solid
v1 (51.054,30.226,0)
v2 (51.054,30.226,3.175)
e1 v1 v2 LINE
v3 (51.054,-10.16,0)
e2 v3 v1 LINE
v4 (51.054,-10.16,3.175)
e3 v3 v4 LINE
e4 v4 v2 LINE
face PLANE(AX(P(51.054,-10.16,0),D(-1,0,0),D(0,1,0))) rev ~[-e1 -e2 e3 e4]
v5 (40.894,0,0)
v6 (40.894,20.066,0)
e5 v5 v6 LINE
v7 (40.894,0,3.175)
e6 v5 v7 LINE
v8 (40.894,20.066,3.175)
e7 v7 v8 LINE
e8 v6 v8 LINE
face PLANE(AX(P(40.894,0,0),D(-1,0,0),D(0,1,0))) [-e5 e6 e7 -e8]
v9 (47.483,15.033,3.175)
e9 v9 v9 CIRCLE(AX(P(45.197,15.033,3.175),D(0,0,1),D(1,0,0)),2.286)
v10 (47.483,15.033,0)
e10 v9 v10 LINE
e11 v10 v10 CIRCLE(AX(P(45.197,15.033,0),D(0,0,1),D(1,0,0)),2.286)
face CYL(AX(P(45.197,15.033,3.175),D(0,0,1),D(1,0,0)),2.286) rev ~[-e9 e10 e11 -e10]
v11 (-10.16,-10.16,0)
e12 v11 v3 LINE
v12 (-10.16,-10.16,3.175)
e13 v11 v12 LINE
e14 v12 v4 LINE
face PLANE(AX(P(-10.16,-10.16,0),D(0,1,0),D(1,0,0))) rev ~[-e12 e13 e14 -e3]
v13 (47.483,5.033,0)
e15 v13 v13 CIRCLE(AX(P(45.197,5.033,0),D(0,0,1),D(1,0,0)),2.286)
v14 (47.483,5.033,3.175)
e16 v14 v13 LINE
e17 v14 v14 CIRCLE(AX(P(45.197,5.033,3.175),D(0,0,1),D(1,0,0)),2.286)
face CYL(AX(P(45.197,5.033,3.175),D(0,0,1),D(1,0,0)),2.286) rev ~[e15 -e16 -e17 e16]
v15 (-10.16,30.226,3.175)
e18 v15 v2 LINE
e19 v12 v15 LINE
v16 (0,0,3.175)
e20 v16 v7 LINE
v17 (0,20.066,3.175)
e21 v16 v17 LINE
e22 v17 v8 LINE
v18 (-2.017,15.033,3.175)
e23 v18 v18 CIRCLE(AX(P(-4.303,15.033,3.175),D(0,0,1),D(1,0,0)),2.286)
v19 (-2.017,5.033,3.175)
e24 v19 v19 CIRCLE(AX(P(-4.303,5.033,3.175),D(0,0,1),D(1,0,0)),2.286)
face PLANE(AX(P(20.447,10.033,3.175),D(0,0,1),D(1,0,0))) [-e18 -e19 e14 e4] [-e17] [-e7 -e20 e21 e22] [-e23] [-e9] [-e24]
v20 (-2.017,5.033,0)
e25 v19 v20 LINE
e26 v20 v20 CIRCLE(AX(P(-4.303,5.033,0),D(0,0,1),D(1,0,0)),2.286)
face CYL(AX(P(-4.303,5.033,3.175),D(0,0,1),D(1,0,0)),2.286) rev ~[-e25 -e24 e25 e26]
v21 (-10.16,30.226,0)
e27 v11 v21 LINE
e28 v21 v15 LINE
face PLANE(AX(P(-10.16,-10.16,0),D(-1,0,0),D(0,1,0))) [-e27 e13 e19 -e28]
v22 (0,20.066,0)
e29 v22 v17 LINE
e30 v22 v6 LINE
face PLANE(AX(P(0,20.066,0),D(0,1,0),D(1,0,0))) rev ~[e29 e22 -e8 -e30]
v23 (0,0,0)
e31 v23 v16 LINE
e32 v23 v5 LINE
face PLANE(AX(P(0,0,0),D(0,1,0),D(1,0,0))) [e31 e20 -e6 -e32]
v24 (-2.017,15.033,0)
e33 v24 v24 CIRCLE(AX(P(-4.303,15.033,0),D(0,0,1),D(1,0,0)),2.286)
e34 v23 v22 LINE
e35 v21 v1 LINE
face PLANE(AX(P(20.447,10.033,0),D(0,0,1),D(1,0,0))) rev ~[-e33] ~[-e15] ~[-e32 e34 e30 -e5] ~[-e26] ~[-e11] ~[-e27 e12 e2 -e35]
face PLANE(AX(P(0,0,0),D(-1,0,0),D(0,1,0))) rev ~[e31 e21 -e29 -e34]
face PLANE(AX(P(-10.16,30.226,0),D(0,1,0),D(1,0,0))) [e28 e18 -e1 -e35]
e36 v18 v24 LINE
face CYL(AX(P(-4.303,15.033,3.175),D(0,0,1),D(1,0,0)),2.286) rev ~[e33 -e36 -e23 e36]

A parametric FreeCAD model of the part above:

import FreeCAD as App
import Part
import Sketcher

V = App.Vector
Q = App.Units.Quantity

doc = App.newDocument("Part")
params = doc.addObject("Spreadsheet::Sheet", "Params")
for row, (alias, value) in enumerate([
    ("sketch1_width", "2.41 in"),
    ("sketch1_width2", "1.61 in"),
    ("sketch1_height", "1.59 in"),
    ("sketch1_height2", "0.79 in"),
    ("pad1_length", "0.125 in"),
    ("sketch2_diameter", "0.18 in"),
], start=1):
    params.set(f"A{row}", alias)
    params.set(f"B{row}", "=" + value)
    params.setAlias(f"B{row}", alias)

body = doc.addObject("PartDesign::Body", "Body")

# Sketch on XY plane
sketch1 = body.newObject("Sketcher::SketchObject", "Sketch")
sketch1.AttachmentSupport = (doc.getObject("XY_Plane"), [""])
sketch1.MapMode = "FlatFace"
sketch1.addGeometry(Part.LineSegment(V(-10, 30, 0), V(-10, -10, 0)), False)
sketch1.addGeometry(Part.LineSegment(V(-10, -10, 0), V(51, -10, 0)), False)
sketch1.addGeometry(Part.LineSegment(V(51, -10, 0), V(51, 30, 0)), False)
sketch1.addGeometry(Part.LineSegment(V(51, 30, 0), V(-10, 30, 0)), False)
sketch1.addGeometry(Part.LineSegment(V(41, 0, 0), V(0, 0, 0)), False)
sketch1.addGeometry(Part.LineSegment(V(0, 0, 0), V(0, 20, 0)), False)
sketch1.addGeometry(Part.LineSegment(V(0, 20, 0), V(41, 20, 0)), False)
sketch1.addGeometry(Part.LineSegment(V(41, 20, 0), V(41, 0, 0)), False)
sketch1.addConstraint(Sketcher.Constraint("Coincident", 0, 2, 1, 1))
sketch1.addConstraint(Sketcher.Constraint("Coincident", 1, 2, 2, 1))
sketch1.addConstraint(Sketcher.Constraint("Coincident", 2, 2, 3, 1))
sketch1.addConstraint(Sketcher.Constraint("Coincident", 3, 2, 0, 1))
sketch1.addConstraint(Sketcher.Constraint("Coincident", 4, 2, 5, 1))
sketch1.addConstraint(Sketcher.Constraint("Coincident", 5, 2, 6, 1))
sketch1.addConstraint(Sketcher.Constraint("Coincident", 6, 2, 7, 1))
sketch1.addConstraint(Sketcher.Constraint("Coincident", 7, 2, 4, 1))
sketch1.addConstraint(Sketcher.Constraint("Vertical", 0))
sketch1.addConstraint(Sketcher.Constraint("Horizontal", 1))
sketch1.addConstraint(Sketcher.Constraint("Vertical", 2))
sketch1.addConstraint(Sketcher.Constraint("Horizontal", 3))
sketch1.addConstraint(Sketcher.Constraint("Horizontal", 4))
sketch1.addConstraint(Sketcher.Constraint("Vertical", 5))
sketch1.addConstraint(Sketcher.Constraint("Horizontal", 6))
sketch1.addConstraint(Sketcher.Constraint("Vertical", 7))
sketch1.addConstraint(Sketcher.Constraint("Coincident", 4, 2, -1, 1))
sketch1.addConstraint(Sketcher.Constraint("DistanceX", 1, 1, 1, 2, Q("2.41 in")))
sketch1.addConstraint(Sketcher.Constraint("DistanceX", 4, 2, 4, 1, Q("1.61 in")))
sketch1.addConstraint(Sketcher.Constraint("DistanceY", 0, 2, 0, 1, Q("1.59 in")))
sketch1.addConstraint(Sketcher.Constraint("DistanceY", 5, 1, 5, 2, Q("0.79 in")))
sketch1.addConstraint(Sketcher.Constraint("DistanceX", 0, 2, -1, 1, Q("0.4 in")))
sketch1.addConstraint(Sketcher.Constraint("DistanceY", 0, 2, -1, 1, Q("0.4 in")))
sketch1.setExpression("Constraints[17]", "Params.sketch1_width")
sketch1.setExpression("Constraints[18]", "Params.sketch1_width2")
sketch1.setExpression("Constraints[19]", "Params.sketch1_height")
sketch1.setExpression("Constraints[20]", "Params.sketch1_height2")
pad1 = body.newObject("PartDesign::Pad", "Pad")
pad1.Profile = sketch1
pad1.setExpression("Length", "Params.pad1_length")

# Sketch on XY plane
sketch2 = body.newObject("Sketcher::SketchObject", "Sketch001")
sketch2.AttachmentSupport = (doc.getObject("XY_Plane"), [""])
sketch2.MapMode = "FlatFace"
sketch2.AttachmentOffset = App.Placement(V(0, 0, 0.125 * 25.4), App.Rotation())
sketch2.addGeometry(Part.Circle(V(-4.3, 15, 0), V(0, 0, 1), 2.3), False)
sketch2.addGeometry(Part.Circle(V(-4.3, 5, 0), V(0, 0, 1), 2.3), False)
sketch2.addGeometry(Part.Circle(V(45.2, 5, 0), V(0, 0, 1), 2.3), False)
sketch2.addGeometry(Part.Circle(V(45.2, 15, 0), V(0, 0, 1), 2.3), False)
sketch2.addConstraint(Sketcher.Constraint("Equal", 0, 1))
sketch2.addConstraint(Sketcher.Constraint("Equal", 1, 2))
sketch2.addConstraint(Sketcher.Constraint("Equal", 2, 3))
sketch2.addConstraint(Sketcher.Constraint("Horizontal", 1, 3, 2, 3))
sketch2.addConstraint(Sketcher.Constraint("Horizontal", 0, 3, 3, 3))
sketch2.addConstraint(Sketcher.Constraint("Vertical", 0, 3, 1, 3))
sketch2.addConstraint(Sketcher.Constraint("Vertical", 2, 3, 3, 3))
sketch2.addConstraint(Sketcher.Constraint("Diameter", 0, Q("0.18 in")))
sketch2.addConstraint(Sketcher.Constraint("DistanceX", 0, 3, -1, 1, 4.303))
sketch2.addConstraint(Sketcher.Constraint("DistanceY", -1, 1, 0, 3, 15.033))
sketch2.addConstraint(Sketcher.Constraint("DistanceY", -1, 1, 1, 3, 5.033))
sketch2.addConstraint(Sketcher.Constraint("DistanceX", -1, 1, 2, 3, 45.197))
sketch2.setExpression("Constraints[7]", "Params.sketch2_diameter")
pocket1 = body.newObject("PartDesign::Pocket", "Pocket")
pocket1.Profile = sketch2
pocket1.Type = "ThroughAll"

doc.recompute()
